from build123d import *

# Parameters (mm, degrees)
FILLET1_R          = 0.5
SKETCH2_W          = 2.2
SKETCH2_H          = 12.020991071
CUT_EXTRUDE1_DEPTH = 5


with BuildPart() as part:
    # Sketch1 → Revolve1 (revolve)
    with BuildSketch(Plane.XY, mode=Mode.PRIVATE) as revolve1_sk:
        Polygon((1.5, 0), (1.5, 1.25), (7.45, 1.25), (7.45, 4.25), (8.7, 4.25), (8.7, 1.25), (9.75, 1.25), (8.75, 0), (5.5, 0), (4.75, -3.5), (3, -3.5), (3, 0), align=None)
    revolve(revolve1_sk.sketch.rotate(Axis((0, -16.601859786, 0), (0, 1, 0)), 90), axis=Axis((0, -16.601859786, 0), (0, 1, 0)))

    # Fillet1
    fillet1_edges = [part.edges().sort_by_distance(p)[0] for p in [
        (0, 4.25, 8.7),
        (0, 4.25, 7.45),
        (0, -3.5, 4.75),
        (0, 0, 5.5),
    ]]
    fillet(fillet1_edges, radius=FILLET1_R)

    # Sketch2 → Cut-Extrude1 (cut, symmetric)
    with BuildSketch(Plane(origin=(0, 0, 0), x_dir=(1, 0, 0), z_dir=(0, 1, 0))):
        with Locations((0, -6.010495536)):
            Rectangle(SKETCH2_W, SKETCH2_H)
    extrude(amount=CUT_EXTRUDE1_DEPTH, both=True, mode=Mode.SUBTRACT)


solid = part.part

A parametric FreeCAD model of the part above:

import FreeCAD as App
import Part
import Sketcher

V = App.Vector
Q = App.Units.Quantity


def edges_at(feature, points):
    """Names of the edges that pass closest to the given points."""
    edges = feature.Shape.Edges
    near = lambda p: min(range(len(edges)), key=lambda i: edges[i].distToShape(Part.Vertex(*p))[0])
    return sorted({f"Edge{near(p) + 1}" for p in points})

doc = App.newDocument("Part")
body = doc.addObject("PartDesign::Body", "Body")

# Sketch on XY plane
sketch1 = body.newObject("Sketcher::SketchObject", "Sketch")
sketch1.AttachmentSupport = (doc.getObject("XY_Plane"), [""])
sketch1.MapMode = "FlatFace"
sketch1.addGeometry([
    Part.LineSegment(V(1.5, 1.25, 0), V(1.5, 0, 0)),  # 0
    Part.LineSegment(V(1.5, 0, 0), V(3, 0, 0)),  # 1
    Part.LineSegment(V(3, 0, 0), V(3, -3.5, 0)),  # 2
    Part.LineSegment(V(3, -3.5, 0), V(4.75, -3.5, 0)),  # 3
    Part.LineSegment(V(4.75, -3.5, 0), V(5.5, 0, 0)),  # 4
    Part.LineSegment(V(5.5, 0, 0), V(8.75, 0, 0)),  # 5
    Part.LineSegment(V(8.75, 0, 0), V(9.75, 1.25, 0)),  # 6
    Part.LineSegment(V(9.75, 1.25, 0), V(8.7, 1.25, 0)),  # 7
    Part.LineSegment(V(8.7, 1.25, 0), V(8.7, 4.25, 0)),  # 8
    Part.LineSegment(V(8.7, 4.25, 0), V(7.45, 4.25, 0)),  # 9
    Part.LineSegment(V(7.45, 4.25, 0), V(7.45, 1.25, 0)),  # 10
    Part.LineSegment(V(7.45, 1.25, 0), V(1.5, 1.25, 0)),  # 11
], False)
sketch1.addConstraint([
    Sketcher.Constraint("Coincident", 0, 2, 1, 1),
    Sketcher.Constraint("Coincident", 1, 2, 2, 1),
    Sketcher.Constraint("Coincident", 2, 2, 3, 1),
    Sketcher.Constraint("Coincident", 3, 2, 4, 1),
    Sketcher.Constraint("Coincident", 4, 2, 5, 1),
    Sketcher.Constraint("Coincident", 5, 2, 6, 1),
    Sketcher.Constraint("Coincident", 6, 2, 7, 1),
    Sketcher.Constraint("Coincident", 7, 2, 8, 1),
    Sketcher.Constraint("Coincident", 8, 2, 9, 1),
    Sketcher.Constraint("Coincident", 9, 2, 10, 1),
    Sketcher.Constraint("Coincident", 10, 2, 11, 1),
    Sketcher.Constraint("Coincident", 11, 2, 0, 1),
    Sketcher.Constraint("Vertical", 0),
    Sketcher.Constraint("Horizontal", 1),
    Sketcher.Constraint("Vertical", 2),
    Sketcher.Constraint("Horizontal", 3),
    Sketcher.Constraint("Horizontal", 5),
    Sketcher.Constraint("Horizontal", 7),
    Sketcher.Constraint("Vertical", 8),
    Sketcher.Constraint("Horizontal", 9),
    Sketcher.Constraint("Vertical", 10),
    Sketcher.Constraint("Horizontal", 11),
    Sketcher.Constraint("PointOnObject", 0, 2, -1),
    Sketcher.Constraint("PointOnObject", 4, 2, -1),
    Sketcher.Constraint("Horizontal", 7, 2, 10, 2),
    Sketcher.Constraint("Equal", 9, 0),
    Sketcher.Constraint("DistanceY", 8, 1, 8, 2, Q("3 mm")),
    Sketcher.Constraint("DistanceX", 1, 1, 1, 2, Q("1.5 mm")),
    Sketcher.Constraint("DistanceY", 2, 2, 2, 1, Q("3.5 mm")),
    Sketcher.Constraint("DistanceX", -1, 1, 1, 2, Q("3 mm")),
    Sketcher.Constraint("DistanceX", 0, 2, 4, 2, Q("4 mm")),
    Sketcher.Constraint("DistanceX", 3, 2, 5, 2, Q("4 mm")),
    Sketcher.Constraint("DistanceX", 5, 2, 6, 2, Q("1 mm")),
    Sketcher.Constraint("DistanceX", 3, 1, 3, 2, Q("1.75 mm")),
    Sketcher.Constraint("DistanceX", 7, 2, 7, 1, Q("1.05 mm")),
    Sketcher.Constraint("DistanceX", 9, 2, 9, 1, Q("1.25 mm")),
])
revolution = body.newObject("PartDesign::Revolution", "Revolution")
revolution.Profile = sketch1
revolution.ReferenceAxis = (sketch1, ["V_Axis"])
revolution.Angle = 360
doc.recompute()

fillet = body.newObject("PartDesign::Fillet", "Fillet")
fillet.Base = (revolution, edges_at(revolution, [
    (0, 4.25, 8.7),
    (0, 4.25, 7.45),
    (0, -3.5, 4.75),
    (0, 0, 5.5),
]))
fillet.Radius = 0.5

# Sketch on XZ plane
sketch2 = body.newObject("Sketcher::SketchObject", "Sketch001")
sketch2.AttachmentSupport = (doc.getObject("XZ_Plane"), [""])
sketch2.MapMode = "FlatFace"
sketch2.addGeometry([
    Part.LineSegment(V(-1.1, 0, 0), V(-1.1, 12.020991, 0)),
    Part.LineSegment(V(-1.1, 12.020991, 0), V(1.1, 12.020991, 0)),
    Part.LineSegment(V(1.1, 12.020991, 0), V(1.1, 0, 0)),
    Part.LineSegment(V(1.1, 0, 0), V(-1.1, 0, 0)),
], False)
sketch2.addConstraint([
    Sketcher.Constraint("Coincident", 0, 2, 1, 1),
    Sketcher.Constraint("Coincident", 1, 2, 2, 1),
    Sketcher.Constraint("Coincident", 2, 2, 3, 1),
    Sketcher.Constraint("Coincident", 3, 2, 0, 1),
    Sketcher.Constraint("Vertical", 0),
    Sketcher.Constraint("Horizontal", 1),
    Sketcher.Constraint("Vertical", 2),
    Sketcher.Constraint("Horizontal", 3),
    Sketcher.Constraint("Symmetric", 2, 2, 3, 2, -1, 1),
    Sketcher.Constraint("DistanceX", 1, 1, 1, 2, Q("2.2 mm")),
    Sketcher.Constraint("DistanceY", 0, 1, 0, 2, Q("12.020991 mm")),
])
pocket1 = body.newObject("PartDesign::Pocket", "Pocket")
pocket1.Profile = sketch2
pocket1.Length = 10
pocket1.Midplane = True

doc.recompute()
